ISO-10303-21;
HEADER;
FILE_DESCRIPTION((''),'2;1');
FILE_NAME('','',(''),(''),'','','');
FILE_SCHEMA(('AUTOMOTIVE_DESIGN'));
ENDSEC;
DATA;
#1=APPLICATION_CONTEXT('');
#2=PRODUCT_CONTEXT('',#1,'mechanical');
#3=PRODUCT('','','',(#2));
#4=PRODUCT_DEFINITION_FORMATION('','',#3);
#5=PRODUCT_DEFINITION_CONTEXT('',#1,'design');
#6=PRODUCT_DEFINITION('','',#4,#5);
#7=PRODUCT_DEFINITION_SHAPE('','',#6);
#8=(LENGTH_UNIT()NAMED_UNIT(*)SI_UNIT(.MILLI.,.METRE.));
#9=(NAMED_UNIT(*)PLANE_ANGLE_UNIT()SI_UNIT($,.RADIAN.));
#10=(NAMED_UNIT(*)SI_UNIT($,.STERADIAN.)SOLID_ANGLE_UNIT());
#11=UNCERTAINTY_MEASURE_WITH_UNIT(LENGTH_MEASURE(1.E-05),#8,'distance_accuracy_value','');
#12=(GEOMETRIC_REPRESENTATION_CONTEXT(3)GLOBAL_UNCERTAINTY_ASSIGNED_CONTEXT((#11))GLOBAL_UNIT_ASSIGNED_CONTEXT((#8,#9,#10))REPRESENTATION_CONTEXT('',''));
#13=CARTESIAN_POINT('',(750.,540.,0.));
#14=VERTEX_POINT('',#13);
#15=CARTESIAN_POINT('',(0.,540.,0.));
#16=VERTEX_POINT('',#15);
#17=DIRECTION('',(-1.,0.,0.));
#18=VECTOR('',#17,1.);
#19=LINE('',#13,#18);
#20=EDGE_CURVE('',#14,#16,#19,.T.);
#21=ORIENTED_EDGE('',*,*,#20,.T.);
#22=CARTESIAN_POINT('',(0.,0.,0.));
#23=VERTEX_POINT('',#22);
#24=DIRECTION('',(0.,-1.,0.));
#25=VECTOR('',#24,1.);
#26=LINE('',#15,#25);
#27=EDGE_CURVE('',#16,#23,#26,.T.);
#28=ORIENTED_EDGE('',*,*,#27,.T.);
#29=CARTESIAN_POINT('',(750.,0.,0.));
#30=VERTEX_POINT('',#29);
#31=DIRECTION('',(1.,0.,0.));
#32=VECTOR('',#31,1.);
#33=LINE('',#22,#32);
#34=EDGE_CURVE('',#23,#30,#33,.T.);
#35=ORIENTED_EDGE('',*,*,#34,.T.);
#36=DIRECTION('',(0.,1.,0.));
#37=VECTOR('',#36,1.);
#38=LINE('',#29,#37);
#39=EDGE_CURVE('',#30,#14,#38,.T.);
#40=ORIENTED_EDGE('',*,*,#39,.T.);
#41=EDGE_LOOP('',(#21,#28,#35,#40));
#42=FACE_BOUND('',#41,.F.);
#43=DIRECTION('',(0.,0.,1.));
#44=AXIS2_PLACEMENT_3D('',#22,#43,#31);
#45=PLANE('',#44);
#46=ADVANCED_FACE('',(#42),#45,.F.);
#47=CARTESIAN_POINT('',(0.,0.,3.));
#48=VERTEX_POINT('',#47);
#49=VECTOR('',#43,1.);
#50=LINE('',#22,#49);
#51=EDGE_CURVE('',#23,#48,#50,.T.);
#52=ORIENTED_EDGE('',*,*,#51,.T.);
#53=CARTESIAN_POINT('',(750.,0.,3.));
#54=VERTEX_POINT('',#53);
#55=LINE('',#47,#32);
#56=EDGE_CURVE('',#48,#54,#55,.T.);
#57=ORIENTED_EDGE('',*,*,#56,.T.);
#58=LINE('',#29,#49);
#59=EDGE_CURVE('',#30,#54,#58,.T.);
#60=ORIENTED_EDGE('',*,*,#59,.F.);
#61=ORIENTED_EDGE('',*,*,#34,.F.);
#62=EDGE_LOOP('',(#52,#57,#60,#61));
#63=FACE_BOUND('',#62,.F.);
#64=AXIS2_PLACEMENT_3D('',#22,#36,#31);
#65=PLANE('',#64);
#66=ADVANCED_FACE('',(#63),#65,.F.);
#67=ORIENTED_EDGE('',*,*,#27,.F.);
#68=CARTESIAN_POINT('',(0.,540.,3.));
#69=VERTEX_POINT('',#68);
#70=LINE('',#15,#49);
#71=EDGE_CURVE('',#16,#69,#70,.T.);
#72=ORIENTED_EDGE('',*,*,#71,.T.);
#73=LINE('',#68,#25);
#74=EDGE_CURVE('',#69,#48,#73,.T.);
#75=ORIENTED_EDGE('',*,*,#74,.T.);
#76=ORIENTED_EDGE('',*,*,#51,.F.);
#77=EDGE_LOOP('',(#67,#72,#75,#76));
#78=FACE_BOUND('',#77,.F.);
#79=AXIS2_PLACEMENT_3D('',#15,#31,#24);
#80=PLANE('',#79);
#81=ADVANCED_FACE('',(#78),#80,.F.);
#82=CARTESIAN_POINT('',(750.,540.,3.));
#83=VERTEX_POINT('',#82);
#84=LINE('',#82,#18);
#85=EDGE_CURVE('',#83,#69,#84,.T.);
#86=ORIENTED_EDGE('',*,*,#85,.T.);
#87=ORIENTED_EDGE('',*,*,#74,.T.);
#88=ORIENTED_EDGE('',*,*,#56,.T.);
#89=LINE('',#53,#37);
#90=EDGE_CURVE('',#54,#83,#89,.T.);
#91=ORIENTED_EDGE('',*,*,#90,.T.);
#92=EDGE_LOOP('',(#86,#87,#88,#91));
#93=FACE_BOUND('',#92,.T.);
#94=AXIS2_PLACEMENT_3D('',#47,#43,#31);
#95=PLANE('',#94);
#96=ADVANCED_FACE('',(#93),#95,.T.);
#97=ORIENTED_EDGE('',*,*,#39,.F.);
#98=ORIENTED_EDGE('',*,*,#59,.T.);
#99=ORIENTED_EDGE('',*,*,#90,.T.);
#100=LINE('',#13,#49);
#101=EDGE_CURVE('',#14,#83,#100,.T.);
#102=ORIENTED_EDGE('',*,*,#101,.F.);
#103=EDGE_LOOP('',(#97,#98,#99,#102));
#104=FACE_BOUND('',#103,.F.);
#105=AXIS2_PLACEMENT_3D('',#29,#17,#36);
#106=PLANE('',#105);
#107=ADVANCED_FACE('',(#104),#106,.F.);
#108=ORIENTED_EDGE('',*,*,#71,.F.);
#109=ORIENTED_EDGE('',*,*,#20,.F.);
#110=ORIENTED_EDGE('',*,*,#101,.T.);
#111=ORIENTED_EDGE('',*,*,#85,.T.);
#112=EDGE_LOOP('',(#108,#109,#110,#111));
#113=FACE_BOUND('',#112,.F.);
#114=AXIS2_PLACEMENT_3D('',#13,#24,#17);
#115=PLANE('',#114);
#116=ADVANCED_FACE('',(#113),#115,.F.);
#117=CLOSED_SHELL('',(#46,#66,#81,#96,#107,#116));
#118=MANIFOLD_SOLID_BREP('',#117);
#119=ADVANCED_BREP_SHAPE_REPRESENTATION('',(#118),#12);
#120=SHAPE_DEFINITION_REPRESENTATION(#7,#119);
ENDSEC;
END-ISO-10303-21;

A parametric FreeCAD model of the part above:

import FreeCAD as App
import Part
import Sketcher

V = App.Vector
Q = App.Units.Quantity


def add_polygon(sketch, points):
    """Adds a closed chain of lines whose ends are joined by coincident constraints."""
    first, n = sketch.GeometryCount, len(points)
    for a, b in zip(points, points[1:] + points[:1]):
        sketch.addGeometry(Part.LineSegment(App.Vector(*a, 0), App.Vector(*b, 0)), False)
    for i in range(n):
        sketch.addConstraint(Sketcher.Constraint("Coincident", first + i, 2, first + (i + 1) % n, 1))

doc = App.newDocument("Part")
body = doc.addObject("PartDesign::Body", "Body")

# Sketch on XY plane
sketch1 = doc.addObject("Sketcher::SketchObject", "Sketch")
body.addObject(sketch1)
sketch1.AttachmentSupport = (doc.XY_Plane, [""])
sketch1.MapMode = "FlatFace"
add_polygon(sketch1, [(0, 540), (0, 0), (750, 0), (750, 540)])  # lines 0-3
sketch1.addConstraint([
    Sketcher.Constraint("Vertical", 0),
    Sketcher.Constraint("Horizontal", 1),
    Sketcher.Constraint("Vertical", 2),
    Sketcher.Constraint("Horizontal", 3),
    Sketcher.Constraint("Coincident", 0, 2, -1, 1),
    Sketcher.Constraint("DistanceX", 1, 1, 1, 2, Q("750 mm")),
    Sketcher.Constraint("DistanceY", 0, 2, 0, 1, Q("540 mm")),
])
pad1 = doc.addObject("PartDesign::Pad", "Pad")
body.addObject(pad1)
pad1.Profile = sketch1
pad1.Length = 3

doc.recompute()
